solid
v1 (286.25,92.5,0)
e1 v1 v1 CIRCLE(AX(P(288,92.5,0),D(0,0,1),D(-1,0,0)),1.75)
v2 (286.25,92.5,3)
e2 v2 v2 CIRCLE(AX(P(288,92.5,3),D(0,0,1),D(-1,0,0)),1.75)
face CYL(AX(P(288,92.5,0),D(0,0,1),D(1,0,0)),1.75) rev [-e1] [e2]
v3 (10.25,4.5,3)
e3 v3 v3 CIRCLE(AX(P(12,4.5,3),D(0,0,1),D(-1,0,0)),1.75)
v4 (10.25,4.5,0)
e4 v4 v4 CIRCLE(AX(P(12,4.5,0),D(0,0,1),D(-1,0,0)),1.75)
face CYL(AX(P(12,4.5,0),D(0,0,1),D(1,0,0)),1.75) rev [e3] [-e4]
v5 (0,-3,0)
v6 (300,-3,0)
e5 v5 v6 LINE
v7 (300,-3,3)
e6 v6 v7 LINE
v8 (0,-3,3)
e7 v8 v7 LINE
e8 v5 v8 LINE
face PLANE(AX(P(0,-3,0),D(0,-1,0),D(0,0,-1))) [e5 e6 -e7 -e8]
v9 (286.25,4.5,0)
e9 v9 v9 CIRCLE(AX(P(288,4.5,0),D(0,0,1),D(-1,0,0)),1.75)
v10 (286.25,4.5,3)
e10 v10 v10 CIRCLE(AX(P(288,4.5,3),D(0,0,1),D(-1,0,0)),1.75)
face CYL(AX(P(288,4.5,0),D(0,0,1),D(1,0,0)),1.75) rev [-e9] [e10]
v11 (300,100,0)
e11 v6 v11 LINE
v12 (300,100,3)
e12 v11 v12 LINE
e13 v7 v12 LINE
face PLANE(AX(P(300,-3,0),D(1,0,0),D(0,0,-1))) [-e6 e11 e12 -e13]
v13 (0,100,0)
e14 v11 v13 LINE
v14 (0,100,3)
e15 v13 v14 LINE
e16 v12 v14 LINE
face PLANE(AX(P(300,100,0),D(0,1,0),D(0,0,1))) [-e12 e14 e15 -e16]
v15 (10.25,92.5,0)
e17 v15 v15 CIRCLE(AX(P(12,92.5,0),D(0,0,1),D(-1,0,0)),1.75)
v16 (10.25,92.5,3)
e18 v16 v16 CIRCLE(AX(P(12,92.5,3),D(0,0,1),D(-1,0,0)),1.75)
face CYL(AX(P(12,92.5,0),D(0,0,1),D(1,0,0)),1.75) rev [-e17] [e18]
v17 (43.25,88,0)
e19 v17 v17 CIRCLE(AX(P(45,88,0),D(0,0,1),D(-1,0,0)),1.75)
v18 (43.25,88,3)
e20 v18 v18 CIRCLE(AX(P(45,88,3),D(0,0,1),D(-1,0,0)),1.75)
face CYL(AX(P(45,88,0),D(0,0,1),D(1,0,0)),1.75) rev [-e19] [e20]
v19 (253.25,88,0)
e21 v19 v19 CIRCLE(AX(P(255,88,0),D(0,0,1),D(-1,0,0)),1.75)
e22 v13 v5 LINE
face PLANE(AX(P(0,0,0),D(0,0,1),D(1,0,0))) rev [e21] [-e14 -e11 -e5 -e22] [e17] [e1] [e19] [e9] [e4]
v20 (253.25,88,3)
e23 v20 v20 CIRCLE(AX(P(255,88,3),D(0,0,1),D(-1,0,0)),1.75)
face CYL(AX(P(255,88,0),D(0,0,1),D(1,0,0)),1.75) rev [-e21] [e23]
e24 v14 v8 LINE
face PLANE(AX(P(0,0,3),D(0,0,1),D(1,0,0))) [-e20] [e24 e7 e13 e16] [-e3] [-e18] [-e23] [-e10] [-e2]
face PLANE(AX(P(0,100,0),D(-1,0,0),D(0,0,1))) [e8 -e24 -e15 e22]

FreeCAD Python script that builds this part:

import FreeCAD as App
import Part
import Sketcher

doc = App.newDocument("Part")
body = doc.addObject("PartDesign::Body", "Body")

# Sketch on XY plane
sketch1 = body.newObject("Sketcher::SketchObject", "Sketch")
sketch1.AttachmentSupport = (doc.getObject("XY_Plane"), [""])
sketch1.MapMode = "FlatFace"
sketch1.AttachmentOffset = App.Placement(App.Vector(0, 0, 3), App.Rotation())
sketch1.addGeometry(Part.LineSegment(App.Vector(0, 100, 0), App.Vector(0, -3, 0)), False)
sketch1.addGeometry(Part.LineSegment(App.Vector(0, -3, 0), App.Vector(300, -3, 0)), False)
sketch1.addGeometry(Part.LineSegment(App.Vector(300, -3, 0), App.Vector(300, 100, 0)), False)
sketch1.addGeometry(Part.LineSegment(App.Vector(300, 100, 0), App.Vector(0, 100, 0)), False)
sketch1.addGeometry(Part.Circle(App.Vector(12, 4.5, 0), App.Vector(0, 0, 1), 1.8), False)
sketch1.addGeometry(Part.Circle(App.Vector(288, 4.5, 0), App.Vector(0, 0, 1), 1.8), False)
sketch1.addGeometry(Part.Circle(App.Vector(45, 88, 0), App.Vector(0, 0, 1), 1.8), False)
sketch1.addGeometry(Part.Circle(App.Vector(12, 92.5, 0), App.Vector(0, 0, 1), 1.8), False)
sketch1.addGeometry(Part.Circle(App.Vector(255, 88, 0), App.Vector(0, 0, 1), 1.8), False)
sketch1.addGeometry(Part.Circle(App.Vector(288, 92.5, 0), App.Vector(0, 0, 1), 1.8), False)
sketch1.addConstraint(Sketcher.Constraint("Coincident", 0, 2, 1, 1))
sketch1.addConstraint(Sketcher.Constraint("Coincident", 1, 2, 2, 1))
sketch1.addConstraint(Sketcher.Constraint("Coincident", 2, 2, 3, 1))
sketch1.addConstraint(Sketcher.Constraint("Coincident", 3, 2, 0, 1))
sketch1.addConstraint(Sketcher.Constraint("Vertical", 0))
sketch1.addConstraint(Sketcher.Constraint("Horizontal", 1))
sketch1.addConstraint(Sketcher.Constraint("Vertical", 2))
sketch1.addConstraint(Sketcher.Constraint("Horizontal", 3))
sketch1.addConstraint(Sketcher.Constraint("Equal", 4, 5))
sketch1.addConstraint(Sketcher.Constraint("Equal", 5, 6))
sketch1.addConstraint(Sketcher.Constraint("Equal", 6, 7))
sketch1.addConstraint(Sketcher.Constraint("Equal", 7, 8))
sketch1.addConstraint(Sketcher.Constraint("Equal", 8, 9))
sketch1.addConstraint(Sketcher.Constraint("PointOnObject", 0, 2, -2))
sketch1.addConstraint(Sketcher.Constraint("Horizontal", 4, 3, 5, 3))
sketch1.addConstraint(Sketcher.Constraint("Horizontal", 6, 3, 8, 3))
sketch1.addConstraint(Sketcher.Constraint("Horizontal", 7, 3, 9, 3))
sketch1.addConstraint(Sketcher.Constraint("Vertical", 4, 3, 7, 3))
sketch1.addConstraint(Sketcher.Constraint("Vertical", 5, 3, 9, 3))
sketch1.addConstraint(Sketcher.Constraint("Diameter", 4, 3.5))
sketch1.addConstraint(Sketcher.Constraint("DistanceX", 1, 1, 1, 2, 300.0))
sketch1.addConstraint(Sketcher.Constraint("DistanceY", 0, 2, 0, 1, 103.0))
sketch1.addConstraint(Sketcher.Constraint("DistanceX", -1, 1, 4, 3, 12.0))
sketch1.addConstraint(Sketcher.Constraint("DistanceX", -1, 1, 5, 3, 288.0))
sketch1.addConstraint(Sketcher.Constraint("DistanceX", -1, 1, 6, 3, 45.0))
sketch1.addConstraint(Sketcher.Constraint("DistanceY", -1, 1, 6, 3, 88.0))
sketch1.addConstraint(Sketcher.Constraint("DistanceX", -1, 1, 8, 3, 255.0))
sketch1.addConstraint(Sketcher.Constraint("DistanceY", 0, 2, -1, 1, 3.0))
sketch1.addConstraint(Sketcher.Constraint("DistanceY", 4, 3, 7, 3, 88.0))
sketch1.addConstraint(Sketcher.Constraint("DistanceY", -1, 1, 4, 3, 4.5))
pad1 = body.newObject("PartDesign::Pad", "Pad")
pad1.Profile = sketch1
pad1.Length = 3
pad1.Reversed = True

doc.recompute()
